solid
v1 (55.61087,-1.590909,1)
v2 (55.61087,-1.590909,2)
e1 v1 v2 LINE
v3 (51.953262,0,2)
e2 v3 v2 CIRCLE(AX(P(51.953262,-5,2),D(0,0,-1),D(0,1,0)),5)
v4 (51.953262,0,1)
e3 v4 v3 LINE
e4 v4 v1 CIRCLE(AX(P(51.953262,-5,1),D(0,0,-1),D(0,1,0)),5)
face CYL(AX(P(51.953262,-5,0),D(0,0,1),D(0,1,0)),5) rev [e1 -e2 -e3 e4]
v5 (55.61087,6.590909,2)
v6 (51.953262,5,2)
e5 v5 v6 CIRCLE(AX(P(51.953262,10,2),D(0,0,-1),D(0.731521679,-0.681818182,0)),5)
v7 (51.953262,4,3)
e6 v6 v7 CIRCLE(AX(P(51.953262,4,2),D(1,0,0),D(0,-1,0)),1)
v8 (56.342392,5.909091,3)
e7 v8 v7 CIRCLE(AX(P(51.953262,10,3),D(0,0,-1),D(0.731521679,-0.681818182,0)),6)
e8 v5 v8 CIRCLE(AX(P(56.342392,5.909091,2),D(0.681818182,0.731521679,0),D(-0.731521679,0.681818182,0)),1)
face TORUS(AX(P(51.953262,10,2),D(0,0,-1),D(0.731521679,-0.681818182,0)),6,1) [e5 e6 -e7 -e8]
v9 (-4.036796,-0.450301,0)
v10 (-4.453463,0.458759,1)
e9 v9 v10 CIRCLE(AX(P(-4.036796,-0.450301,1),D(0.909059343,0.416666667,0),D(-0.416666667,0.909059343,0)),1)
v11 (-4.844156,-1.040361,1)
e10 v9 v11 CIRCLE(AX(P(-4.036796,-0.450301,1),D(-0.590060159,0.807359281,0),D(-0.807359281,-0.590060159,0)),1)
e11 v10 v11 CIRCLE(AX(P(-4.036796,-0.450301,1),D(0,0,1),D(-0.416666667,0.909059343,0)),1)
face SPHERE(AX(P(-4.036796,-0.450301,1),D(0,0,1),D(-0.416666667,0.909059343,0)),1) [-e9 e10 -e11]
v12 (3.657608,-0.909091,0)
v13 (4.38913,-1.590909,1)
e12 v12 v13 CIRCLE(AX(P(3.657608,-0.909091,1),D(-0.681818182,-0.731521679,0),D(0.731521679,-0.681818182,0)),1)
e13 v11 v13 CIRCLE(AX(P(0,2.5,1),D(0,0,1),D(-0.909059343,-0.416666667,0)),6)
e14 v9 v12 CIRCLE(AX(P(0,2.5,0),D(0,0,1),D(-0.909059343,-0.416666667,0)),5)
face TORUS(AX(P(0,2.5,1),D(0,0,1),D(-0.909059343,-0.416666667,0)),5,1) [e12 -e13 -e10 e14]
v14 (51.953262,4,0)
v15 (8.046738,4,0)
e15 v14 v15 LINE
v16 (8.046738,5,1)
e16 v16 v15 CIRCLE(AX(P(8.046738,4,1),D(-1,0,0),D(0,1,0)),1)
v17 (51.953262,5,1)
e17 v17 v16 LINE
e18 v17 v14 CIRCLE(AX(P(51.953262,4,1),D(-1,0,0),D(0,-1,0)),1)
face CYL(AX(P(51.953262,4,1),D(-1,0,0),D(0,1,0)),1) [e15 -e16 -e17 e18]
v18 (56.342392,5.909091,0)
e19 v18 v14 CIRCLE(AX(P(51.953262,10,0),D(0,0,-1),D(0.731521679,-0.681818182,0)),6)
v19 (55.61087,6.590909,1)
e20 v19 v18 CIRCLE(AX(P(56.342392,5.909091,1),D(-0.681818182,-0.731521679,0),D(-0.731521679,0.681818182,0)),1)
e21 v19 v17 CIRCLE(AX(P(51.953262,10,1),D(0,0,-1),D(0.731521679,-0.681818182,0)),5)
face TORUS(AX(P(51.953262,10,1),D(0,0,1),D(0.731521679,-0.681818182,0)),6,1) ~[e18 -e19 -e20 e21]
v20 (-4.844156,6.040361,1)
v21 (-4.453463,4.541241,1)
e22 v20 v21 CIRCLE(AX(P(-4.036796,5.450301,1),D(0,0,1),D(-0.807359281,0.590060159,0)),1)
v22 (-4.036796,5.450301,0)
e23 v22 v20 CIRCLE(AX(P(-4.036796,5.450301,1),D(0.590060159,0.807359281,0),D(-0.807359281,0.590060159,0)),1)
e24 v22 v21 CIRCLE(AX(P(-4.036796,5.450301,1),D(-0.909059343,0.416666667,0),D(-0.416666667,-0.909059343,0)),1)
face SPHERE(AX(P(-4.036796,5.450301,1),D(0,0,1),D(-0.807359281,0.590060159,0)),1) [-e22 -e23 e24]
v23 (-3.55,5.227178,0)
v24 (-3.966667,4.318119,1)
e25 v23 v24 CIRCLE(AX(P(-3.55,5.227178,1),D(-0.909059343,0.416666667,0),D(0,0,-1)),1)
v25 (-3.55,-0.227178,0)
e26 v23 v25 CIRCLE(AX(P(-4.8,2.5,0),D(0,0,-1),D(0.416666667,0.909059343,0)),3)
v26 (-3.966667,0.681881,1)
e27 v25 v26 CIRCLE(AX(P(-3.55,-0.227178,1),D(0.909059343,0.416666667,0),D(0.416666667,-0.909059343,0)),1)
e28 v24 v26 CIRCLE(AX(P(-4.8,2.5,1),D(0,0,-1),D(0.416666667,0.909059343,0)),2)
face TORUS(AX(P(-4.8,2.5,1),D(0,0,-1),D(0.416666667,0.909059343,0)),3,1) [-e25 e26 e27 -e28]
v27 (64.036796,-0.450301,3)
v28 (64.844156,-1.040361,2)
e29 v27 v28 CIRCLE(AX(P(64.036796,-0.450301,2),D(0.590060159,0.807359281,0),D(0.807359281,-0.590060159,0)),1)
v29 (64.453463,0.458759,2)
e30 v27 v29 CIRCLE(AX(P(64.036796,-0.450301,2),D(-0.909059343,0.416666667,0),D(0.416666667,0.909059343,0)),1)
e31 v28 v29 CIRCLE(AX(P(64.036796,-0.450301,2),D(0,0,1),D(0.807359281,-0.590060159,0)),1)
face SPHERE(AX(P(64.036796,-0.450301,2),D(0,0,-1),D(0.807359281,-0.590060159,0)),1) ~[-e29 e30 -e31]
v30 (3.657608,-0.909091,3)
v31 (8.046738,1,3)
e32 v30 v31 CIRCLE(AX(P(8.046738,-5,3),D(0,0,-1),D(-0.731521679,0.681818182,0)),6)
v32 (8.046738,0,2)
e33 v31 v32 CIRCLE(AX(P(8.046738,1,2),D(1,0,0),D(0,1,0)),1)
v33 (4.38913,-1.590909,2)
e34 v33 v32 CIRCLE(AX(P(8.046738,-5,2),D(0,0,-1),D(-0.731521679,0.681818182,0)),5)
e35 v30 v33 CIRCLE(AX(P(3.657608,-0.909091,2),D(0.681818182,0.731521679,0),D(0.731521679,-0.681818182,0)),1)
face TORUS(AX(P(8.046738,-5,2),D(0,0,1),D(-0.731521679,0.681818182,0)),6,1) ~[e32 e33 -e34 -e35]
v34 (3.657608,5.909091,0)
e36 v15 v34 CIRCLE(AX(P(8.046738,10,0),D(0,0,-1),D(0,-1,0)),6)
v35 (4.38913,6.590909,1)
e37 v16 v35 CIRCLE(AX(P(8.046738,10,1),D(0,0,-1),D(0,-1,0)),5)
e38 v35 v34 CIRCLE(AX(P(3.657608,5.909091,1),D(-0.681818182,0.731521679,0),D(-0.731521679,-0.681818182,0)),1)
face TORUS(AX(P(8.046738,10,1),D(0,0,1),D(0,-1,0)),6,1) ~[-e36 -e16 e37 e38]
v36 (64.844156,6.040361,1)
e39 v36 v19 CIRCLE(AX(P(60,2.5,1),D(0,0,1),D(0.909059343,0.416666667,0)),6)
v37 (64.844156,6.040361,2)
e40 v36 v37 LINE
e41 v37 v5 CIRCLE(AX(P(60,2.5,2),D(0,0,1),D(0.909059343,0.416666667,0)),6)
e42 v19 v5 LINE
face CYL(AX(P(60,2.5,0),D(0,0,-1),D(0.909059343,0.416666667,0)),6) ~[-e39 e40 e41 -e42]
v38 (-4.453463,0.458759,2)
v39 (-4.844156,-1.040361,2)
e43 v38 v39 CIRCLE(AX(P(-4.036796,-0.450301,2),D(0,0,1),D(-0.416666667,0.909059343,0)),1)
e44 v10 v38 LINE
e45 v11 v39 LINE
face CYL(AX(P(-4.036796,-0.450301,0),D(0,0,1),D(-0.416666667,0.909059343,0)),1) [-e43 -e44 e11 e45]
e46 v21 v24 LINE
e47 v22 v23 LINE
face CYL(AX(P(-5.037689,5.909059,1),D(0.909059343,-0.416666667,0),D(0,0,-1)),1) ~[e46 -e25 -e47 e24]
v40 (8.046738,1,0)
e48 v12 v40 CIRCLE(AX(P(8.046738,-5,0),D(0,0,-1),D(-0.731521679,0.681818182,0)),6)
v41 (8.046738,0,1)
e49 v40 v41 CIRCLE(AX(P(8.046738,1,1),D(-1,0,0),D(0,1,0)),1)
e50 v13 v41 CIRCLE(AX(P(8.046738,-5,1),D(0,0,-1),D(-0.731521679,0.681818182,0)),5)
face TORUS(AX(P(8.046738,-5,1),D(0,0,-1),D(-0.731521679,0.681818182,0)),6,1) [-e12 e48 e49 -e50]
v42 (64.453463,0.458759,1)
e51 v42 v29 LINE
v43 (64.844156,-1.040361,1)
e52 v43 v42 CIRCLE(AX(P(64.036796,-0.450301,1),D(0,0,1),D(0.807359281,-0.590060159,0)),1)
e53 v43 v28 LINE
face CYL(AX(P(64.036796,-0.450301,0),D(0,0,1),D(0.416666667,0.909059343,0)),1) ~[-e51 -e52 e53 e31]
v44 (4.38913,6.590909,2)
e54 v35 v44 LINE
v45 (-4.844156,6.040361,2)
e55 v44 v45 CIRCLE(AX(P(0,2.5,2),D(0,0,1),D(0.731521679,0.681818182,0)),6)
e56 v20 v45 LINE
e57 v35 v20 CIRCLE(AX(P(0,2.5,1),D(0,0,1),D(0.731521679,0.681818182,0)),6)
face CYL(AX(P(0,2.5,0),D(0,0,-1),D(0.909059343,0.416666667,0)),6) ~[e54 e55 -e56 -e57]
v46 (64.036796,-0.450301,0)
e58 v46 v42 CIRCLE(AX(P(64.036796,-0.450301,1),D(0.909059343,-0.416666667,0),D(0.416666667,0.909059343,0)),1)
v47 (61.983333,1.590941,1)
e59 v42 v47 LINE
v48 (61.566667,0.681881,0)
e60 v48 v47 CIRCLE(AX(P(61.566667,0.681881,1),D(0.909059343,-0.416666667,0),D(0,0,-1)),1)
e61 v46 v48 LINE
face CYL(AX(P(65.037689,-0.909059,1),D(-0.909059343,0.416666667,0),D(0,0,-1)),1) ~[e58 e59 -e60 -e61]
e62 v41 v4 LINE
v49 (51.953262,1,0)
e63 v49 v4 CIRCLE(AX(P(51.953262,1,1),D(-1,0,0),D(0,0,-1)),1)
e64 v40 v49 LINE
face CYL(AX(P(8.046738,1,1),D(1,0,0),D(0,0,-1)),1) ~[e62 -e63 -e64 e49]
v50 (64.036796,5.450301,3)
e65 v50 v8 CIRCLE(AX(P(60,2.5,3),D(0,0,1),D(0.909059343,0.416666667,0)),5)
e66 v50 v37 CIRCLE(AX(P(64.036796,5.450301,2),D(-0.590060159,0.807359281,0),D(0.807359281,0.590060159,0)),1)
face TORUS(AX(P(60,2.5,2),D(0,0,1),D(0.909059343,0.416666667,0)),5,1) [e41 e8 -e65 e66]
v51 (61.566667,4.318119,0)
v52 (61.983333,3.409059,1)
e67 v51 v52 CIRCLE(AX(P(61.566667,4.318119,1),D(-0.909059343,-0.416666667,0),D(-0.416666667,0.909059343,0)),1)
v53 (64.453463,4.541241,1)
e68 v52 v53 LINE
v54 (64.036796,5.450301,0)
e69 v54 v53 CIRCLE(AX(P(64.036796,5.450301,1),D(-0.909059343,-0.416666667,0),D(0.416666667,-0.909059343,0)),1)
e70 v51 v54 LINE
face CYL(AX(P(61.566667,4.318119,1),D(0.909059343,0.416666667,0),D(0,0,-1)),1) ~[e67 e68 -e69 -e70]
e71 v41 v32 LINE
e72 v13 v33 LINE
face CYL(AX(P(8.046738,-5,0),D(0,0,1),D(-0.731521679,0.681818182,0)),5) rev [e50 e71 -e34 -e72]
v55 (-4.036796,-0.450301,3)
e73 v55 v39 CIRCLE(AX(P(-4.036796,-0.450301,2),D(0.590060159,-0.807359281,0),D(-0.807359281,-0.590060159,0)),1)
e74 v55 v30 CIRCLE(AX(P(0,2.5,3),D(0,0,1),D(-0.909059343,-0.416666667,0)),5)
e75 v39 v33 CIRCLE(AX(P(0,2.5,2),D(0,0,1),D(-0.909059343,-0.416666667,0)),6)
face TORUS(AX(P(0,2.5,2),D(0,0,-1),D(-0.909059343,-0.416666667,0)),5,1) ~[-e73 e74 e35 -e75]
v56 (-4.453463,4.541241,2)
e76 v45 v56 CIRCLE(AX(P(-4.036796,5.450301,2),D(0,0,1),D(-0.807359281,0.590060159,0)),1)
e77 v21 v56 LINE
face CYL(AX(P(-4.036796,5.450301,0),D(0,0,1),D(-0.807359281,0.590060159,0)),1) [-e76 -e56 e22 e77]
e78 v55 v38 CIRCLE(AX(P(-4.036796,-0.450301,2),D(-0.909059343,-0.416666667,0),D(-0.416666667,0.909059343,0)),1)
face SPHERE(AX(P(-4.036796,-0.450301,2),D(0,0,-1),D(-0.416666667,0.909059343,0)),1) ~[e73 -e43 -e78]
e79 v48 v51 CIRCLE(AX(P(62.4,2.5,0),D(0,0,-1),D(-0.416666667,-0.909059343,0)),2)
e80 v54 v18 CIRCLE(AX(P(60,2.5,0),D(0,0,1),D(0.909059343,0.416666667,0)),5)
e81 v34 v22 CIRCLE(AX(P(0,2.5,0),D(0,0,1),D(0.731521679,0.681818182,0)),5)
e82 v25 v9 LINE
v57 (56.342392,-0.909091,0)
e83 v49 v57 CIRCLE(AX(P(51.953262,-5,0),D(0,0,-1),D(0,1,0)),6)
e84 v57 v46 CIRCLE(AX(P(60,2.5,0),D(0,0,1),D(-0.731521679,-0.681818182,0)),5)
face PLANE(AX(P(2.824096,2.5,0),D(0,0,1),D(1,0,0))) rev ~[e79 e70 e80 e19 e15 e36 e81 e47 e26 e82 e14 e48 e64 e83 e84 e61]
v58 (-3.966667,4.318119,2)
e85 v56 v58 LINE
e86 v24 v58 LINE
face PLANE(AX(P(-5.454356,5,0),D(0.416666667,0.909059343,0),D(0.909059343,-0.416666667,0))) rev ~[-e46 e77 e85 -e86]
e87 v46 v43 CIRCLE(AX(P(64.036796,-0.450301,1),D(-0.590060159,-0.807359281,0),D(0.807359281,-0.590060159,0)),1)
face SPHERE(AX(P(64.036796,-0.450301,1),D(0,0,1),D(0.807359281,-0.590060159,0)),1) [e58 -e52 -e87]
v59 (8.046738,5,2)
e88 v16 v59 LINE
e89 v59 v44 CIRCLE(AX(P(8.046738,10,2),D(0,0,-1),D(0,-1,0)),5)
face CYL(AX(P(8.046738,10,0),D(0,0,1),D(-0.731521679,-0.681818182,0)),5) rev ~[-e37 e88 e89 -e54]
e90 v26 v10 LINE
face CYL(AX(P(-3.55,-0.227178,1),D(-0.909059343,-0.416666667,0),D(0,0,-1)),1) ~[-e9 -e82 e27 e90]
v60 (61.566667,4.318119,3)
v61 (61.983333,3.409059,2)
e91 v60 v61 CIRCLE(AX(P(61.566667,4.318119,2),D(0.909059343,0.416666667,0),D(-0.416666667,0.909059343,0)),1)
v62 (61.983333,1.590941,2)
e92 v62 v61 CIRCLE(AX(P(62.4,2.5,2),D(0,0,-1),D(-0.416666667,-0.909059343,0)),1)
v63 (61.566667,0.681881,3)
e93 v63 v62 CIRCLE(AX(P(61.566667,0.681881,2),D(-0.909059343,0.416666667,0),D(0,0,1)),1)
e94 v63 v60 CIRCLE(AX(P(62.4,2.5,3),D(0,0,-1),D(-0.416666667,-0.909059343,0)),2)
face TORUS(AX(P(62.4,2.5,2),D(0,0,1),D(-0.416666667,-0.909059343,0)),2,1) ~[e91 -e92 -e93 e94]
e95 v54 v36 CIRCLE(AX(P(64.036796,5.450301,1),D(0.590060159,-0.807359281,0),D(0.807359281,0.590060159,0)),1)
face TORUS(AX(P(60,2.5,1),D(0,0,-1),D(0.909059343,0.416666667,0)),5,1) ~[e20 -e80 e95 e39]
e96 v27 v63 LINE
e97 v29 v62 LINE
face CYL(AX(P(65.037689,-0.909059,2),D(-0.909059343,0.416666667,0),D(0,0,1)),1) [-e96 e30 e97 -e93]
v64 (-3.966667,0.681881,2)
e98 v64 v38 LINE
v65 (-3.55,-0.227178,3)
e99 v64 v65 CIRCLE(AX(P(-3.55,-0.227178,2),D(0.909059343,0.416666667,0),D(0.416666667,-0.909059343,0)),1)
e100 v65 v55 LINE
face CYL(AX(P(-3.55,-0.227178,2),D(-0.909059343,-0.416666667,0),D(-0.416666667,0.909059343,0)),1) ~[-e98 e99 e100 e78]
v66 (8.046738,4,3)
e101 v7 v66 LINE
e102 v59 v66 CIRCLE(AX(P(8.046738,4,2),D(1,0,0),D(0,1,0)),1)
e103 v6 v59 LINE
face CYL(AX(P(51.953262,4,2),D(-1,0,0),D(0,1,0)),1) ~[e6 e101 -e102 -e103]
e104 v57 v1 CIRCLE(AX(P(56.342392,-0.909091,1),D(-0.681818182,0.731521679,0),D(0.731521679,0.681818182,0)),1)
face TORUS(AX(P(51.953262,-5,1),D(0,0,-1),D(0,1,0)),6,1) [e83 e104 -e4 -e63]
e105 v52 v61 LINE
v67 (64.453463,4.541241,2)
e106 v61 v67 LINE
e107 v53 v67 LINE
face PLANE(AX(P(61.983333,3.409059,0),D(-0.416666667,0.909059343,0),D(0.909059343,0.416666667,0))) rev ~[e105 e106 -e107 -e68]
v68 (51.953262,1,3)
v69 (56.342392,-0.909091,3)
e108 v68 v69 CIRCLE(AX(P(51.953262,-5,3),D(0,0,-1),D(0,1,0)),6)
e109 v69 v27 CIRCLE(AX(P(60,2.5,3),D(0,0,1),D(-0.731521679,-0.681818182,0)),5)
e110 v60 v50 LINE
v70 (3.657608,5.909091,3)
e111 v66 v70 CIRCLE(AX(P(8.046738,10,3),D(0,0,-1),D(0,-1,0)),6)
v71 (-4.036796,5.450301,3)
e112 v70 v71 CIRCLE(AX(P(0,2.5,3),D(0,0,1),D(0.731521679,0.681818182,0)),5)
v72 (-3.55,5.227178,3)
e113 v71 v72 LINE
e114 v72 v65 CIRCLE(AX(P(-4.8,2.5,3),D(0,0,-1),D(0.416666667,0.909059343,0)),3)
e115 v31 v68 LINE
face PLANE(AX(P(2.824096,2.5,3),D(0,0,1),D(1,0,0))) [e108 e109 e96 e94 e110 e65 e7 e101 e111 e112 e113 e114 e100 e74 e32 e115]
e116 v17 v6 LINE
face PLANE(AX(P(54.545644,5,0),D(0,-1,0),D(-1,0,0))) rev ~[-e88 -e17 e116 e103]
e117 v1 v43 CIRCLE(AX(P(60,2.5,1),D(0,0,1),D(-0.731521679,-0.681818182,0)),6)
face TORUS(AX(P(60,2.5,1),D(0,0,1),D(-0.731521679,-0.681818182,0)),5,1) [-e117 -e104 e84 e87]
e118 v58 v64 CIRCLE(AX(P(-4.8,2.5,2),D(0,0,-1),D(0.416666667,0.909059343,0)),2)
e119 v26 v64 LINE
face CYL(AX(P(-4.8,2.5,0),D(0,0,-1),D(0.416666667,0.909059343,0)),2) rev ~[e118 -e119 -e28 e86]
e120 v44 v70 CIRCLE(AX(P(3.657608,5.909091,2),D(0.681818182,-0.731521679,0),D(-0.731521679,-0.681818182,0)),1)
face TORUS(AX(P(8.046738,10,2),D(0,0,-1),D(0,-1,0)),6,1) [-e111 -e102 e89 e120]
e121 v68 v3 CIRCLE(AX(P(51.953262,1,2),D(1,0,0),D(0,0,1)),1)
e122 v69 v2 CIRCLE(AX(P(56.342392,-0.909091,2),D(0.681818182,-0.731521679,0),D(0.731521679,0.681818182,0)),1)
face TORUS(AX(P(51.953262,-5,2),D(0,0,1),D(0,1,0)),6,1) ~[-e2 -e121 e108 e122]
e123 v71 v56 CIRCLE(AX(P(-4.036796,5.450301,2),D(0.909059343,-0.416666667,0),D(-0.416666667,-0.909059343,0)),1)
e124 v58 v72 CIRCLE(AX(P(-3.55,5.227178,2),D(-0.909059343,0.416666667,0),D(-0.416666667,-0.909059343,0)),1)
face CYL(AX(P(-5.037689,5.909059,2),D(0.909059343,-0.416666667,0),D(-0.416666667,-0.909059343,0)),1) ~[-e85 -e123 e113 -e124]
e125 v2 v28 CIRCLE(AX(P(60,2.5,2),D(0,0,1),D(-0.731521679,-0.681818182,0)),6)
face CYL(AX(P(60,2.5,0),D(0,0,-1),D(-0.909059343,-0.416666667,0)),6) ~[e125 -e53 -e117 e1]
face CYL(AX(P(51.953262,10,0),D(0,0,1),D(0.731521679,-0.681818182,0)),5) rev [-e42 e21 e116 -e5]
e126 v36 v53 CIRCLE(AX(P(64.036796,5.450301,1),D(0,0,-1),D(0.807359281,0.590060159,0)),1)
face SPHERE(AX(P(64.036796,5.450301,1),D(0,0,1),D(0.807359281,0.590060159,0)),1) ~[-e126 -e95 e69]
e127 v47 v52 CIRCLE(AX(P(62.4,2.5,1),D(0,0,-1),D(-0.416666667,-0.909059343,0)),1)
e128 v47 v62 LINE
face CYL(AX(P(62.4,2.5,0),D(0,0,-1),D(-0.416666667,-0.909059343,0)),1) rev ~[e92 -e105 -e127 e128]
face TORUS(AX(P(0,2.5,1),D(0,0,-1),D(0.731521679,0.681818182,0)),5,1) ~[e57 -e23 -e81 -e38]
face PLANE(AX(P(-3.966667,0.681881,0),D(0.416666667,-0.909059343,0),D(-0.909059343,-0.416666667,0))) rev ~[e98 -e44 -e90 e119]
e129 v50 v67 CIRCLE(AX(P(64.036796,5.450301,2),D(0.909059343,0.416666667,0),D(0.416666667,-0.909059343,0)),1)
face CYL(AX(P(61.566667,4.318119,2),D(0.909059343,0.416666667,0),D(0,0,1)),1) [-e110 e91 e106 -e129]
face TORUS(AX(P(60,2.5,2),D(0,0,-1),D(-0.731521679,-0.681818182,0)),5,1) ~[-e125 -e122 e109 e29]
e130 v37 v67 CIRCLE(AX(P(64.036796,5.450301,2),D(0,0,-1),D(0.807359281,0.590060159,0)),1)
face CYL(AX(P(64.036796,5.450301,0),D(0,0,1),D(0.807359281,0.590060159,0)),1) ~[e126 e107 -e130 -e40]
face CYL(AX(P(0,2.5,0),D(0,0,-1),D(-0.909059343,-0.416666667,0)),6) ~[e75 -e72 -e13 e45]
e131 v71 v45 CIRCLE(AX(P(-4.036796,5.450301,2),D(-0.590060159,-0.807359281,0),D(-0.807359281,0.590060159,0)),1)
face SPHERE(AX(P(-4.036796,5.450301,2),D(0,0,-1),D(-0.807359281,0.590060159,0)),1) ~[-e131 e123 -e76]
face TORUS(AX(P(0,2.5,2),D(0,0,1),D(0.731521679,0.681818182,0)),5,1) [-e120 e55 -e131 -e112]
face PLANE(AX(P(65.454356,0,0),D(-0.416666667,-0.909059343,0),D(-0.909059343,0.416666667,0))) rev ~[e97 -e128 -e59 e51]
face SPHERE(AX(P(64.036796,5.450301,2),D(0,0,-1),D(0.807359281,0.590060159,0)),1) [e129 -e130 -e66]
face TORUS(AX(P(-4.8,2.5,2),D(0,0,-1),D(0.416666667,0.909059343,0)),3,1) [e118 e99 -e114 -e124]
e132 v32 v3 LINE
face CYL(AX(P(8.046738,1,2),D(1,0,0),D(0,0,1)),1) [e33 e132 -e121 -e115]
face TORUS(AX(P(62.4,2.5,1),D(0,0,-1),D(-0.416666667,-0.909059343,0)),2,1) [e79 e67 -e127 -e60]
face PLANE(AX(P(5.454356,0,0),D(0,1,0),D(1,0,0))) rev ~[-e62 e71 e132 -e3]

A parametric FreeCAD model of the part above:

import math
import FreeCAD as App
import Part
import Sketcher


def edges_at(feature, points):
    """Names of the edges that pass closest to the given points."""
    edges = feature.Shape.Edges
    near = lambda p: min(range(len(edges)), key=lambda i: edges[i].distToShape(Part.Vertex(*p))[0])
    return sorted({f"Edge{near(p) + 1}" for p in points})

doc = App.newDocument("Part")
body = doc.addObject("PartDesign::Body", "Body")

sketch1 = doc.addObject("Sketcher::SketchObject", "Sketch")
body.addObject(sketch1)
sketch1.AttachmentSupport = (doc.XY_Plane, [""])
sketch1.MapMode = "FlatFace"
sketch1.addGeometry(Part.ArcOfCircle(Part.Circle(App.Vector(0, 2.5, 0), App.Vector(0, 0, 1), 6), math.radians(24.624318), math.radians(155.375682)), False)
sketch1.addGeometry(Part.LineSegment(App.Vector(-5.454356, 5, 0), App.Vector(-3.966667, 4.318119, 0)), False)
sketch1.addGeometry(Part.ArcOfCircle(Part.Circle(App.Vector(-4.8, 2.5, 0), App.Vector(0, 0, 1), 2), math.radians(-65.375682), math.radians(65.375682)), False)
sketch1.addGeometry(Part.LineSegment(App.Vector(-3.966667, 0.681881, 0), App.Vector(-5.454356, 0, 0)), False)
sketch1.addGeometry(Part.ArcOfCircle(Part.Circle(App.Vector(0, 2.5, 0), App.Vector(0, 0, 1), 6), math.radians(-155.375682), math.radians(-24.624318)), False)
sketch1.addGeometry(Part.LineSegment(App.Vector(5.454356, 0, 0), App.Vector(54.545644, 0, 0)), False)
sketch1.addGeometry(Part.ArcOfCircle(Part.Circle(App.Vector(60, 2.5, 0), App.Vector(0, 0, 1), 6), math.radians(-155.375682), math.radians(-24.624318)), False)
sketch1.addGeometry(Part.LineSegment(App.Vector(65.454356, 0, 0), App.Vector(61.983333, 1.590941, 0)), False)
sketch1.addGeometry(Part.ArcOfCircle(Part.Circle(App.Vector(62.4, 2.5, 0), App.Vector(0, 0, 1), 1), math.radians(114.624318), math.radians(245.375682)), False)
sketch1.addGeometry(Part.LineSegment(App.Vector(61.983333, 3.409059, 0), App.Vector(65.454356, 5, 0)), False)
sketch1.addGeometry(Part.ArcOfCircle(Part.Circle(App.Vector(60, 2.5, 0), App.Vector(0, 0, 1), 6), math.radians(24.624318), math.radians(155.375682)), False)
sketch1.addGeometry(Part.LineSegment(App.Vector(54.545644, 5, 0), App.Vector(5.454356, 5, 0)), False)
sketch1.addConstraint(Sketcher.Constraint("Coincident", 0, 2, 1, 1))
sketch1.addConstraint(Sketcher.Constraint("Tangent", 1, 2, 2, 2))
sketch1.addConstraint(Sketcher.Constraint("Tangent", 2, 1, 3, 1))
sketch1.addConstraint(Sketcher.Constraint("Coincident", 3, 2, 4, 1))
sketch1.addConstraint(Sketcher.Constraint("Coincident", 4, 2, 5, 1))
sketch1.addConstraint(Sketcher.Constraint("Coincident", 5, 2, 6, 1))
sketch1.addConstraint(Sketcher.Constraint("Coincident", 6, 2, 7, 1))
sketch1.addConstraint(Sketcher.Constraint("Tangent", 7, 2, 8, 2))
sketch1.addConstraint(Sketcher.Constraint("Tangent", 8, 1, 9, 1))
sketch1.addConstraint(Sketcher.Constraint("Coincident", 9, 2, 10, 1))
sketch1.addConstraint(Sketcher.Constraint("Coincident", 10, 2, 11, 1))
sketch1.addConstraint(Sketcher.Constraint("Coincident", 11, 2, 0, 1))
sketch1.addConstraint(Sketcher.Constraint("Horizontal", 5))
sketch1.addConstraint(Sketcher.Constraint("Horizontal", 11))
sketch1.addConstraint(Sketcher.Constraint("Coincident", 4, 3, 0, 3))
sketch1.addConstraint(Sketcher.Constraint("Coincident", 10, 3, 6, 3))
sketch1.addConstraint(Sketcher.Constraint("Equal", 0, 4))
sketch1.addConstraint(Sketcher.Constraint("Equal", 4, 6))
sketch1.addConstraint(Sketcher.Constraint("Equal", 6, 10))
sketch1.addConstraint(Sketcher.Constraint("Symmetric", 3, 2, 4, 2, -1, 1))
sketch1.addConstraint(Sketcher.Constraint("Symmetric", 0, 2, 11, 2, -2))
sketch1.addConstraint(Sketcher.Constraint("PointOnObject", 6, 2, -1))
sketch1.addConstraint(Sketcher.Constraint("Parallel", 1, 7))
sketch1.addConstraint(Sketcher.Constraint("Parallel", 3, 9))
sketch1.addConstraint(Sketcher.Constraint("Horizontal", 0, 3, 2, 3))
sketch1.addConstraint(Sketcher.Constraint("Horizontal", 4, 3, 6, 3))
sketch1.addConstraint(Sketcher.Constraint("Horizontal", 6, 3, 8, 3))
sketch1.addConstraint(Sketcher.Constraint("Horizontal", 0, 2, 9, 2))
sketch1.addConstraint(Sketcher.Constraint("Radius", 0, 6.0))
sketch1.addConstraint(Sketcher.Constraint("Radius", 2, 2.0))
sketch1.addConstraint(Sketcher.Constraint("Radius", 8, 1.0))
sketch1.addConstraint(Sketcher.Constraint("DistanceX", -1, 1, 6, 3, 60.0))
sketch1.addConstraint(Sketcher.Constraint("DistanceY", -1, 1, 0, 2, 5.0))
sketch1.addConstraint(Sketcher.Constraint("DistanceX", 2, 3, -1, 1, 4.8))
pad1 = doc.addObject("PartDesign::Pad", "Pad")
body.addObject(pad1)
pad1.Profile = sketch1
pad1.Length = 3
doc.recompute()

fillet = doc.addObject("PartDesign::Fillet", "Fillet")
body.addObject(fillet)
fillet.Base = (pad1, edges_at(pad1, [
    (5.454, 0, 1.5),
    (54.546, 0, 1.5),
    (54.546, 5, 1.5),
    (5.454, 5, 1.5),
]))
fillet.Radius = 5
doc.recompute()

fillet2 = doc.addObject("PartDesign::Fillet", "Fillet001")
body.addObject(fillet2)
fillet2.Base = (fillet, ["Edge1"])
fillet2.UseAllEdges = True
fillet2.Radius = 1

doc.recompute()
